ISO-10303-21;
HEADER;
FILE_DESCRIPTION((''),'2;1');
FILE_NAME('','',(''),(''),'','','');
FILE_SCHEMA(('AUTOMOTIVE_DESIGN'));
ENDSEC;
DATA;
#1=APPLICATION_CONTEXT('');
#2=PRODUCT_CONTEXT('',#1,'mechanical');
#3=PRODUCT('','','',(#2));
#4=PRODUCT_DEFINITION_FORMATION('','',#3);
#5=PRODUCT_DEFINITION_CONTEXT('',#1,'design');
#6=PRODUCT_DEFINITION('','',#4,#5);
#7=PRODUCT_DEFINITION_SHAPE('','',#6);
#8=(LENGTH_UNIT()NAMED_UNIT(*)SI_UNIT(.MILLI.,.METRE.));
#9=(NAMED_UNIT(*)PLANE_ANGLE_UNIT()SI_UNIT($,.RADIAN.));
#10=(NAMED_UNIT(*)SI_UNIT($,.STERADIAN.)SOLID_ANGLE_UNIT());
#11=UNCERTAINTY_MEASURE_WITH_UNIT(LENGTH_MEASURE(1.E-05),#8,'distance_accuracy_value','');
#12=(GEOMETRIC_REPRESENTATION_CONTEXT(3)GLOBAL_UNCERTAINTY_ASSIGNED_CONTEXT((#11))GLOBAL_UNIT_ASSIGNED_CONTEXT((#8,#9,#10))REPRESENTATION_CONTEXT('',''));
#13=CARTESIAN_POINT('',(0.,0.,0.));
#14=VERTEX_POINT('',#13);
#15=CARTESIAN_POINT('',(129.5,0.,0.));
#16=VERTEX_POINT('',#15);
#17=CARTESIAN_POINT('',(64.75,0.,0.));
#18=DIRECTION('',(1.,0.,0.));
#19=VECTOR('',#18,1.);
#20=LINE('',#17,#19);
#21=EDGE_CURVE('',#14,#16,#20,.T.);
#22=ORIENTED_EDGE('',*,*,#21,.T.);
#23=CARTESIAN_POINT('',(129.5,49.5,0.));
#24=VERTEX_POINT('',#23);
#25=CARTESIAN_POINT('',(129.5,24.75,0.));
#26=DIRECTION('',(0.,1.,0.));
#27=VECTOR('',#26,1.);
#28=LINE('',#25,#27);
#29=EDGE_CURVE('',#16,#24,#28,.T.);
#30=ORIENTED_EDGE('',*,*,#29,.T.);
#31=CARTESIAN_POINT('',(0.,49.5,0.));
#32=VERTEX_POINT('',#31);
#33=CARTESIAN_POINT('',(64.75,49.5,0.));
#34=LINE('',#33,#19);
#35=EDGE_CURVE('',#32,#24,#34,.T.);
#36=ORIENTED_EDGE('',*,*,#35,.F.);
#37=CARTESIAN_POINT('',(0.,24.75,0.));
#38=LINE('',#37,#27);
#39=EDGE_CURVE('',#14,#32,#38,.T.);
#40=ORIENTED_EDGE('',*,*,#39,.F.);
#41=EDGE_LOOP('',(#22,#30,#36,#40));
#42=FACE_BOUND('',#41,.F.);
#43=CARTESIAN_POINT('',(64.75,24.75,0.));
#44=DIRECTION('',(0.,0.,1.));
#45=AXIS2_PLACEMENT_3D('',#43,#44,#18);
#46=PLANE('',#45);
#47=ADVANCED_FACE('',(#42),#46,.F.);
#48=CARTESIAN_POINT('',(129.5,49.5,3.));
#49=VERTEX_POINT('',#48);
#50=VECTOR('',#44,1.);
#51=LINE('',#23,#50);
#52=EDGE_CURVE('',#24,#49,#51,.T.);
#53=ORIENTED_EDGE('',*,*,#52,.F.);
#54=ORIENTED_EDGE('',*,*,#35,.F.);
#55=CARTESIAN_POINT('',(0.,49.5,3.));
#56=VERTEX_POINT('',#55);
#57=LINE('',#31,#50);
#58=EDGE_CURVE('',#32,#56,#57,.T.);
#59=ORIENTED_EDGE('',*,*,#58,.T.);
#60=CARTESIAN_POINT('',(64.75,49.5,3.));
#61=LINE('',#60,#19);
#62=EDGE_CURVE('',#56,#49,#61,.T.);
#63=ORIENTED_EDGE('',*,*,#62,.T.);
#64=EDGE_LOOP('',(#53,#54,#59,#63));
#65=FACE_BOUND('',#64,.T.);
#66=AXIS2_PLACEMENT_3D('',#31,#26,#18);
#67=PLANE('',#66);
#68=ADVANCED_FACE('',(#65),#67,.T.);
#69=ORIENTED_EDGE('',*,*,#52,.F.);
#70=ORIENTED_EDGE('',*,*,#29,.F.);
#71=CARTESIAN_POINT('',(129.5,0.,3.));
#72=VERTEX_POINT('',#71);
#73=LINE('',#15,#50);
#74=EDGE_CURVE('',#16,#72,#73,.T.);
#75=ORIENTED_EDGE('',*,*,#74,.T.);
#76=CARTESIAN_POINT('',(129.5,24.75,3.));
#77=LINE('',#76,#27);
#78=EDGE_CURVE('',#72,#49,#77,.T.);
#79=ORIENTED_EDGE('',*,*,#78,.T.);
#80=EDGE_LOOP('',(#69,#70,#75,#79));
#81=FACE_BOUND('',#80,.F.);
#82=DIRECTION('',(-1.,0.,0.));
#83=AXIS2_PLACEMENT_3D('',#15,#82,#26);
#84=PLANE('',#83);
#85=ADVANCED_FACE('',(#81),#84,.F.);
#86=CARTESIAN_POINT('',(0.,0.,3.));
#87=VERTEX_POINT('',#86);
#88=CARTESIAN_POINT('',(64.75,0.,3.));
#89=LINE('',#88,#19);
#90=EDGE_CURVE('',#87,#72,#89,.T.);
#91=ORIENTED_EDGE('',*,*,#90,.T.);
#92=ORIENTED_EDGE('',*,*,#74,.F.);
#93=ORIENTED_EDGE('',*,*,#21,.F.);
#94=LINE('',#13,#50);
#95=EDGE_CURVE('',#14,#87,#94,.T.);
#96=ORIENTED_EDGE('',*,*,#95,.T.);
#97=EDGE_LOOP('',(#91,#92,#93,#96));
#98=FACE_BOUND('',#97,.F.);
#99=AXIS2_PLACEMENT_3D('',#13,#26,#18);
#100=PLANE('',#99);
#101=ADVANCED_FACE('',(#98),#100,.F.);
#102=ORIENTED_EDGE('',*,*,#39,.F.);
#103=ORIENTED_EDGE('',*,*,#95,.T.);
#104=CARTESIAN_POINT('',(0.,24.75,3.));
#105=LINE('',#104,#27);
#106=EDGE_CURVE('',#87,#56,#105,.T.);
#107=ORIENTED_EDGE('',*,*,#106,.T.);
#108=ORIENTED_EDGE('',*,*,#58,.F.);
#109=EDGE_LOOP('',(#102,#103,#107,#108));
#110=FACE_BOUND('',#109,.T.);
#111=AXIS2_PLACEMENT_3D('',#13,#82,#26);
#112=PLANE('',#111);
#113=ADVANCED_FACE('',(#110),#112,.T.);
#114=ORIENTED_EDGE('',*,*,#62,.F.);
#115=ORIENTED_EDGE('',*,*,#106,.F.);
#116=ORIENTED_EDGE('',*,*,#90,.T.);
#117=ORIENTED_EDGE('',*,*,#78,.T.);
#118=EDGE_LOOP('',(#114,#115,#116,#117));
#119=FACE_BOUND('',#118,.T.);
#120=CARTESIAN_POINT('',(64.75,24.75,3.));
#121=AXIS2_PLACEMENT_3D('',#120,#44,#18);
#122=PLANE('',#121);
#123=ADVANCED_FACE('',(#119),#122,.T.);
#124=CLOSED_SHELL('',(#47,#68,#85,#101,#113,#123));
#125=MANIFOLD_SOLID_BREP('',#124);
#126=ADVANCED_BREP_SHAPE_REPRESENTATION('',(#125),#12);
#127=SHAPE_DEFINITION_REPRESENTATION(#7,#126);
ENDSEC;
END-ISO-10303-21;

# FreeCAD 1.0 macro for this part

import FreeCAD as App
import Part
import Sketcher
from FreeCAD import Vector

doc = App.newDocument("Part")
body = doc.addObject("PartDesign::Body", "Body")

# Sketch on XY plane
sketch1 = body.newObject("Sketcher::SketchObject", "Sketch")
sketch1.AttachmentSupport = (doc.getObject("XY_Plane"), [""])
sketch1.MapMode = "FlatFace"
sketch1.addGeometry([
    Part.LineSegment(Vector(0, 50, 0), Vector(0, 0, 0)),
    Part.LineSegment(Vector(0, 0, 0), Vector(130, 0, 0)),
    Part.LineSegment(Vector(130, 0, 0), Vector(130, 50, 0)),
    Part.LineSegment(Vector(130, 50, 0), Vector(0, 50, 0)),
], False)
sketch1.addConstraint([
    Sketcher.Constraint("Coincident", 0, 2, 1, 1),
    Sketcher.Constraint("Coincident", 1, 2, 2, 1),
    Sketcher.Constraint("Coincident", 2, 2, 3, 1),
    Sketcher.Constraint("Coincident", 3, 2, 0, 1),
    Sketcher.Constraint("Vertical", 0),
    Sketcher.Constraint("Horizontal", 1),
    Sketcher.Constraint("Vertical", 2),
    Sketcher.Constraint("Horizontal", 3),
    Sketcher.Constraint("Coincident", 0, 2, -1, 1),
    Sketcher.Constraint("DistanceX", 1, 1, 1, 2, 129.5),
    Sketcher.Constraint("DistanceY", 0, 2, 0, 1, 49.5),
])
pad1 = body.newObject("PartDesign::Pad", "Pad")
pad1.Profile = sketch1
pad1.Length = 3

doc.recompute()
